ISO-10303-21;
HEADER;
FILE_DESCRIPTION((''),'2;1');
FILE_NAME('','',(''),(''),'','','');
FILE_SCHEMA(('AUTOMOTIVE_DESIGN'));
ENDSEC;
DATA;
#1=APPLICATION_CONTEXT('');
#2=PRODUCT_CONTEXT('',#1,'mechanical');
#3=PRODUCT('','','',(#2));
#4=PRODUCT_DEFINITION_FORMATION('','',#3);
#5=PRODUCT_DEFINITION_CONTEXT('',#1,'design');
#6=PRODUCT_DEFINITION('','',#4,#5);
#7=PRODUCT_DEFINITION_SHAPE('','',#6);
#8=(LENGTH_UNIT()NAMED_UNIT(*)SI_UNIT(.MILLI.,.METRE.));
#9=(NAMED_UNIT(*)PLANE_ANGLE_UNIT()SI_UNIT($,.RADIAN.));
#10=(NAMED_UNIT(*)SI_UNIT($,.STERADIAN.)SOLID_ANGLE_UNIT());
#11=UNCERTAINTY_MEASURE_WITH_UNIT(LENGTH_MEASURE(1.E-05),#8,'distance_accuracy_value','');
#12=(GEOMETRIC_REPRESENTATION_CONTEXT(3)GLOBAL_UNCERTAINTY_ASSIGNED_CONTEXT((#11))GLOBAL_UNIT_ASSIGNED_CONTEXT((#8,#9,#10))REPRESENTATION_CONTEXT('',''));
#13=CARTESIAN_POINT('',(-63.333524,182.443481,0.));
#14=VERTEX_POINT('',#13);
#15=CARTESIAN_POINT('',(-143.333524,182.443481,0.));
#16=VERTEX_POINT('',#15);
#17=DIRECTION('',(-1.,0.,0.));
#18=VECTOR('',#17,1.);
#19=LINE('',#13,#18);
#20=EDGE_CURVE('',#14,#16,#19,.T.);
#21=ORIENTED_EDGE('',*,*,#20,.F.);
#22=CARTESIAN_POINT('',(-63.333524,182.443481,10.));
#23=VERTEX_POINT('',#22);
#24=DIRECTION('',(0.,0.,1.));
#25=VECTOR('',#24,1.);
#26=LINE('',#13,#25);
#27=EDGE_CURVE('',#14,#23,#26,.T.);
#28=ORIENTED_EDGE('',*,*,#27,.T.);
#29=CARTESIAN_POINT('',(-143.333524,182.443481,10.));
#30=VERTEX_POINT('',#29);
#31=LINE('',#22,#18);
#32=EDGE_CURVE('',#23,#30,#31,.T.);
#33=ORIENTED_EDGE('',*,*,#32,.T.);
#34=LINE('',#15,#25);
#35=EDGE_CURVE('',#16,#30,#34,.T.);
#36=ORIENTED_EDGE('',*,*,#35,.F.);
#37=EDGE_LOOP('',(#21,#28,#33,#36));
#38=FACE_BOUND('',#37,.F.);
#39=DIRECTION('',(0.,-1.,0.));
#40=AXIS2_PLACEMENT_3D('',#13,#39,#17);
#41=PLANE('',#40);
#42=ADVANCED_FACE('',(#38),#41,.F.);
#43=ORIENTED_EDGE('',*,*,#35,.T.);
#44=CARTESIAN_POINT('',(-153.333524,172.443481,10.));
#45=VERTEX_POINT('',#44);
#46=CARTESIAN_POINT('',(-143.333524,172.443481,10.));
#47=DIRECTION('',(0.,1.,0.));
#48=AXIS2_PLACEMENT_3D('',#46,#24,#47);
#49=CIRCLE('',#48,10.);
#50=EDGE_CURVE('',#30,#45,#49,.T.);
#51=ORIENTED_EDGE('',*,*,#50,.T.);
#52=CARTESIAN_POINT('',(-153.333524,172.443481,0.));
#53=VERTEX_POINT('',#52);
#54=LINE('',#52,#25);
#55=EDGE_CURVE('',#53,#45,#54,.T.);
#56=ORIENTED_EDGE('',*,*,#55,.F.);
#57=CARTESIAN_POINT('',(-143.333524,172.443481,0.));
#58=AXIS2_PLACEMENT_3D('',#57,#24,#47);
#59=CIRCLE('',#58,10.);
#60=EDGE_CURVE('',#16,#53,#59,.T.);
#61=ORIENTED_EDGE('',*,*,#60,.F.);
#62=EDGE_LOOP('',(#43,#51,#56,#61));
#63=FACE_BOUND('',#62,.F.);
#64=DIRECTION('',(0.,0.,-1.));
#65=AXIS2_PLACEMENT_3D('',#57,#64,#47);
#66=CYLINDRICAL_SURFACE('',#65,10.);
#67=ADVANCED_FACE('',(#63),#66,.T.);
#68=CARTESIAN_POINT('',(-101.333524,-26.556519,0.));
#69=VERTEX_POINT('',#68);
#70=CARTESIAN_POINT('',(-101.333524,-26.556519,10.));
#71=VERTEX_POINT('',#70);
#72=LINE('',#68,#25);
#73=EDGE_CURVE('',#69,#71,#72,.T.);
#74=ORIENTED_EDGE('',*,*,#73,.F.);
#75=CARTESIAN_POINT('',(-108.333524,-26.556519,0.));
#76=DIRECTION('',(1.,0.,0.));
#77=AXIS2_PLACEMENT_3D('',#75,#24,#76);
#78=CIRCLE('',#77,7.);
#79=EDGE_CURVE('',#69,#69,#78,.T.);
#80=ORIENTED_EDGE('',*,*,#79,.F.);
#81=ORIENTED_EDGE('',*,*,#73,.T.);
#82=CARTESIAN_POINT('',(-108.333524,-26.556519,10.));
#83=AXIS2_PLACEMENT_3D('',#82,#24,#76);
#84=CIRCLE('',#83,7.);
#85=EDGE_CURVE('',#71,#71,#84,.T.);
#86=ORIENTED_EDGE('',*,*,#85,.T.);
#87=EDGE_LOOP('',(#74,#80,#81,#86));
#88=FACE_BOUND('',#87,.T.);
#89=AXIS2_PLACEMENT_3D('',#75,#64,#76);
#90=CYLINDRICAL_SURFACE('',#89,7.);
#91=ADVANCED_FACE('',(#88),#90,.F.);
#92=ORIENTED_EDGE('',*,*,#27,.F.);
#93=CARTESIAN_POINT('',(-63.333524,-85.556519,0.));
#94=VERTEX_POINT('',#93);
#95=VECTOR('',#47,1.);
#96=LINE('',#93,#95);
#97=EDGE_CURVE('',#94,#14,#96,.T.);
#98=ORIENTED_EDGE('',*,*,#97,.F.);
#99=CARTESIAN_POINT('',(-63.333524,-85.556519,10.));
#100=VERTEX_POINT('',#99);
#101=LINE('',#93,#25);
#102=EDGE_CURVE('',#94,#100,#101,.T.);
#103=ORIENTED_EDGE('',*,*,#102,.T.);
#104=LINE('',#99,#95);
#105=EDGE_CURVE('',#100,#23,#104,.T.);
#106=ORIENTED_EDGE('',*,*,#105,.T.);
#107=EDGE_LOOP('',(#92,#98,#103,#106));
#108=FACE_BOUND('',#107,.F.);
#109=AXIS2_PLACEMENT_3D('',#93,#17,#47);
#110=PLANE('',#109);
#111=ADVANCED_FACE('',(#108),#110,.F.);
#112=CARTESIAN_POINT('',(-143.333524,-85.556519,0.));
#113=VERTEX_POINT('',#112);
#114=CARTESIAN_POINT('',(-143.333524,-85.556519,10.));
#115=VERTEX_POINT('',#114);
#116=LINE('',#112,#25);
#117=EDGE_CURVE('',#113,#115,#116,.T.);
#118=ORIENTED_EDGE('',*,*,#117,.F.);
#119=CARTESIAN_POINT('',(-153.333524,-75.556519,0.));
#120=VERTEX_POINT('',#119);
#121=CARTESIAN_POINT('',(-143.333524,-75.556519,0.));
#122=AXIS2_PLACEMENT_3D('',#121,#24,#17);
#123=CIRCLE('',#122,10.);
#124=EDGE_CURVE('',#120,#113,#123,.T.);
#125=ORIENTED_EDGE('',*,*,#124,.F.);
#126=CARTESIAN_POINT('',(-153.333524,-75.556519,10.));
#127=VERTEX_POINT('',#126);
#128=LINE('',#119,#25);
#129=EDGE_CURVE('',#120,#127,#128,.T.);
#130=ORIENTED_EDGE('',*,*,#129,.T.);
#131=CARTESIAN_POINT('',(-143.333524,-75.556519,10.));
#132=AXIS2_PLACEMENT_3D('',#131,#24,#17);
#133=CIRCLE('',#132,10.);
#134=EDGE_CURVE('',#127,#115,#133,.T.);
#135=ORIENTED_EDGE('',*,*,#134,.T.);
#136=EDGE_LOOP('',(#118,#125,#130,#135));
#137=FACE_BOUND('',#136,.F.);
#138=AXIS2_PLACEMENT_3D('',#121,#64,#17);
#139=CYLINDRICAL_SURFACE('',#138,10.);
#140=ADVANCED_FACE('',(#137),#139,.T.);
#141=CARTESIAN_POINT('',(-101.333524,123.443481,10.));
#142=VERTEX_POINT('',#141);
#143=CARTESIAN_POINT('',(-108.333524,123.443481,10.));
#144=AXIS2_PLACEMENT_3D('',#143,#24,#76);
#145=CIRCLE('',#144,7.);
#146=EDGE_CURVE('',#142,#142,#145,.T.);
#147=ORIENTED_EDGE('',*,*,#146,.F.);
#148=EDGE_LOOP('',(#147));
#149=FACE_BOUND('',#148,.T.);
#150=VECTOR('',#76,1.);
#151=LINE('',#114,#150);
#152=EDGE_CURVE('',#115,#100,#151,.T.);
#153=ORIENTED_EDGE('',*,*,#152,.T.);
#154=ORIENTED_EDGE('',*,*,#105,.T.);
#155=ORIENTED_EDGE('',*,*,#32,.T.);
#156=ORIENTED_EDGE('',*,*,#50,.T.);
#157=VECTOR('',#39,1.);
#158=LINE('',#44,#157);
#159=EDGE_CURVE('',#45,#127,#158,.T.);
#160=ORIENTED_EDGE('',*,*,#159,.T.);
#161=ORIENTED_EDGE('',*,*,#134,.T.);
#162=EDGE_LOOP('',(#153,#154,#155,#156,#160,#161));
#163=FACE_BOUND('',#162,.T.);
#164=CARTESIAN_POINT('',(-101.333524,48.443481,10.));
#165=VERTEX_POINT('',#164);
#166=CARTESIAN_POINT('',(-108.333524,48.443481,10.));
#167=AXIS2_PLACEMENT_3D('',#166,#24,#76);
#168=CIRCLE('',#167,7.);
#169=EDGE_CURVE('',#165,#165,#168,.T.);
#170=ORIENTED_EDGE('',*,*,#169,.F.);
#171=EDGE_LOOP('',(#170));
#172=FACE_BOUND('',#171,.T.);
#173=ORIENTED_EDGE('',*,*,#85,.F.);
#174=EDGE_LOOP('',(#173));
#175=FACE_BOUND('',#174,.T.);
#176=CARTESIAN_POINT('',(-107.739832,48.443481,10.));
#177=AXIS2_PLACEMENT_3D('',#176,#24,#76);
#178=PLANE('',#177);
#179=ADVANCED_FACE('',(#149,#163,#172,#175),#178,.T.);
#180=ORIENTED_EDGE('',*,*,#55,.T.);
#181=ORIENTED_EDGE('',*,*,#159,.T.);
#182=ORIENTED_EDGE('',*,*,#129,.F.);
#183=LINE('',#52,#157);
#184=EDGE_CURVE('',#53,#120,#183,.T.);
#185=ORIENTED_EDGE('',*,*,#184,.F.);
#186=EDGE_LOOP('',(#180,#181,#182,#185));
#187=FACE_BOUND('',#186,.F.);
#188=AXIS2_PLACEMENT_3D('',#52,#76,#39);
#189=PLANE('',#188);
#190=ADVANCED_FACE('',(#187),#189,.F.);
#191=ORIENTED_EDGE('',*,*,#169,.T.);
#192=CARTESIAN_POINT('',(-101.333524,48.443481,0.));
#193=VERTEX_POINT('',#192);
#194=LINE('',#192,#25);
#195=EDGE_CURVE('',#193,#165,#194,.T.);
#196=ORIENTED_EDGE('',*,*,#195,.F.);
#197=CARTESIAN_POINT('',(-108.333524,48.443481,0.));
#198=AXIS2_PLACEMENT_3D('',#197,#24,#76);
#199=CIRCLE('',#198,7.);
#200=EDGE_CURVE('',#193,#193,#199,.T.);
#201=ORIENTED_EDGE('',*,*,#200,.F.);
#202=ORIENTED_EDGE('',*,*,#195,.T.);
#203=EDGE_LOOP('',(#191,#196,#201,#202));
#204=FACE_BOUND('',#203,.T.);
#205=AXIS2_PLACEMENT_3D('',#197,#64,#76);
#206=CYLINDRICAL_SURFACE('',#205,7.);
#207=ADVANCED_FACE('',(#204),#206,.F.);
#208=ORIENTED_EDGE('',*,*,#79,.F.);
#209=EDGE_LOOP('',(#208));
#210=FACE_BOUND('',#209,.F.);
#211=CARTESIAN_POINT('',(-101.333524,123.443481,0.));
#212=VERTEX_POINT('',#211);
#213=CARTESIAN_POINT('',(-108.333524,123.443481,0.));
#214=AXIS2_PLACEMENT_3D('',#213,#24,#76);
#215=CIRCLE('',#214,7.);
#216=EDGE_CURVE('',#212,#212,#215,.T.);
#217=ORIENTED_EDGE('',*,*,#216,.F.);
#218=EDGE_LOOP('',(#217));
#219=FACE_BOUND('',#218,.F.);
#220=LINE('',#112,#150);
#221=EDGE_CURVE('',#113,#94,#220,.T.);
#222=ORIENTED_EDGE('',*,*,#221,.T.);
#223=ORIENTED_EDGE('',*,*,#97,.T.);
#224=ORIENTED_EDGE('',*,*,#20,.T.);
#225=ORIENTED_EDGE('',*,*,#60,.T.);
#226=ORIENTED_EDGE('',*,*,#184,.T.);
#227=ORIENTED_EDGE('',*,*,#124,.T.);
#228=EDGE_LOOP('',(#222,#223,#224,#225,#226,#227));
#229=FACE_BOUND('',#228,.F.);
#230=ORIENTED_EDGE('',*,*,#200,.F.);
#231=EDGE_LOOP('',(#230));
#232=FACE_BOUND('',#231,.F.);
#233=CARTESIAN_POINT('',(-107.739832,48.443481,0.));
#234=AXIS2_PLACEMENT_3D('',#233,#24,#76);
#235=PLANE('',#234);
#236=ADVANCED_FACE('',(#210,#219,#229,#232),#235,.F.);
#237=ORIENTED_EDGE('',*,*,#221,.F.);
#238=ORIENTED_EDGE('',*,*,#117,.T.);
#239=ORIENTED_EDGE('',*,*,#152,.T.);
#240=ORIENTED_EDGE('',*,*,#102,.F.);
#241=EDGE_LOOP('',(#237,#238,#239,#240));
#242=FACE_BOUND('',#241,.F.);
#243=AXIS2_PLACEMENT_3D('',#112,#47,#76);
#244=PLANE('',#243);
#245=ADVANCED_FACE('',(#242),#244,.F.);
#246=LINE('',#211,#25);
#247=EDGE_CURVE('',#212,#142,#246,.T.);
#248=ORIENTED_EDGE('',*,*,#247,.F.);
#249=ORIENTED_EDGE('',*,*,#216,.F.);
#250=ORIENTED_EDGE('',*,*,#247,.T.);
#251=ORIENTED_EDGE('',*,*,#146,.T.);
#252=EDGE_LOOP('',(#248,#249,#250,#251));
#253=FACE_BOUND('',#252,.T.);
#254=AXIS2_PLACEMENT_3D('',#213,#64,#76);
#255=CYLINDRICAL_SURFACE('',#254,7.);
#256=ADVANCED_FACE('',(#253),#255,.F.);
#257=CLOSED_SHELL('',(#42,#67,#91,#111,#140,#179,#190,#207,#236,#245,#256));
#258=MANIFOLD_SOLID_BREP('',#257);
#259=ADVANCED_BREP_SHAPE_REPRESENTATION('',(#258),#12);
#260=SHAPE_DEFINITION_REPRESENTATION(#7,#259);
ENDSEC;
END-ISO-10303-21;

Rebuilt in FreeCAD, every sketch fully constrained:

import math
import FreeCAD as App
import Part
import Sketcher

doc = App.newDocument("Part")
params = doc.addObject("Spreadsheet::Sheet", "Params")
for row, (alias, value) in enumerate([
    ("sketch1_diameter", "14 mm"),
    ("sketch1_radius", "10 mm"),
    ("sketch1_width", "80 mm"),
    ("sketch1_height", "248 mm"),
    ("pad1_length", "10 mm"),
], start=1):
    params.set(f"A{row}", alias)
    params.set(f"B{row}", "=" + value)
    params.setAlias(f"B{row}", alias)

body = doc.addObject("PartDesign::Body", "Body")

sketch1 = doc.addObject("Sketcher::SketchObject", "Sketch")
body.addObject(sketch1)
sketch1.AttachmentSupport = (doc.XY_Plane, [""])
sketch1.MapMode = "FlatFace"
sketch1.addGeometry([
    Part.LineSegment(App.Vector(-63.333524, 182.443481, 0), App.Vector(-143.333524, 182.443481, 0)),
    Part.ArcOfCircle(Part.Circle(App.Vector(-143.333524, 172.443481, 0), App.Vector(0, 0, 1), 10), math.radians(90), math.radians(180)),
    Part.LineSegment(App.Vector(-153.333524, 172.443481, 0), App.Vector(-153.333524, -75.556519, 0)),
    Part.ArcOfCircle(Part.Circle(App.Vector(-143.333524, -75.556519, 0), App.Vector(0, 0, 1), 10), math.radians(-180), math.radians(-90)),
    Part.LineSegment(App.Vector(-143.333524, -85.556519, 0), App.Vector(-63.333524, -85.556519, 0)),
    Part.LineSegment(App.Vector(-63.333524, -85.556519, 0), App.Vector(-63.333524, 182.443481, 0)),
    Part.Circle(App.Vector(-108.333524, -26.556519, 0), App.Vector(0, 0, 1), 7),
    Part.Circle(App.Vector(-108.333524, 48.443481, 0), App.Vector(0, 0, 1), 7),
    Part.Circle(App.Vector(-108.333524, 123.443481, 0), App.Vector(0, 0, 1), 7),
], False)
sketch1.addConstraint([
    Sketcher.Constraint("Tangent", 0, 2, 1, 1),
    Sketcher.Constraint("Tangent", 1, 2, 2, 1),
    Sketcher.Constraint("Tangent", 2, 2, 3, 1),
    Sketcher.Constraint("Tangent", 3, 2, 4, 1),
    Sketcher.Constraint("Coincident", 4, 2, 5, 1),
    Sketcher.Constraint("Coincident", 5, 2, 0, 1),
    Sketcher.Constraint("Horizontal", 0),
    Sketcher.Constraint("Vertical", 2),
    Sketcher.Constraint("Horizontal", 4),
    Sketcher.Constraint("Vertical", 5),
    Sketcher.Constraint("Equal", 1, 3),
    Sketcher.Constraint("Equal", 6, 7),
    Sketcher.Constraint("Equal", 7, 8),
    Sketcher.Constraint("Vertical", 6, 3, 7, 3),
    Sketcher.Constraint("Vertical", 7, 3, 8, 3),
    Sketcher.Constraint("Diameter", 6, 14.0),
    Sketcher.Constraint("Radius", 1, 10.0),
    Sketcher.Constraint("DistanceX", 0, 2, 0, 1, 80.0),
    Sketcher.Constraint("DistanceY", 2, 2, 2, 1, 248.0),
    Sketcher.Constraint("DistanceX", 3, 3, 6, 3, 35.0),
    Sketcher.Constraint("DistanceY", 3, 3, 6, 3, 49.0),
    Sketcher.Constraint("DistanceY", 6, 3, 7, 3, 75.0),
    Sketcher.Constraint("DistanceY", 8, 3, 1, 3, 49.0),
    Sketcher.Constraint("DistanceY", -1, 1, 1, 3, 172.443481),
    Sketcher.Constraint("DistanceX", 1, 3, -1, 1, 143.333524),
])
sketch1.setExpression("Constraints[15]", "Params.sketch1_diameter")
sketch1.setExpression("Constraints[16]", "Params.sketch1_radius")
sketch1.setExpression("Constraints[17]", "Params.sketch1_width")
sketch1.setExpression("Constraints[18]", "Params.sketch1_height")
pad1 = doc.addObject("PartDesign::Pad", "Pad")
body.addObject(pad1)
pad1.Profile = sketch1
pad1.setExpression("Length", "Params.pad1_length")

doc.recompute()
